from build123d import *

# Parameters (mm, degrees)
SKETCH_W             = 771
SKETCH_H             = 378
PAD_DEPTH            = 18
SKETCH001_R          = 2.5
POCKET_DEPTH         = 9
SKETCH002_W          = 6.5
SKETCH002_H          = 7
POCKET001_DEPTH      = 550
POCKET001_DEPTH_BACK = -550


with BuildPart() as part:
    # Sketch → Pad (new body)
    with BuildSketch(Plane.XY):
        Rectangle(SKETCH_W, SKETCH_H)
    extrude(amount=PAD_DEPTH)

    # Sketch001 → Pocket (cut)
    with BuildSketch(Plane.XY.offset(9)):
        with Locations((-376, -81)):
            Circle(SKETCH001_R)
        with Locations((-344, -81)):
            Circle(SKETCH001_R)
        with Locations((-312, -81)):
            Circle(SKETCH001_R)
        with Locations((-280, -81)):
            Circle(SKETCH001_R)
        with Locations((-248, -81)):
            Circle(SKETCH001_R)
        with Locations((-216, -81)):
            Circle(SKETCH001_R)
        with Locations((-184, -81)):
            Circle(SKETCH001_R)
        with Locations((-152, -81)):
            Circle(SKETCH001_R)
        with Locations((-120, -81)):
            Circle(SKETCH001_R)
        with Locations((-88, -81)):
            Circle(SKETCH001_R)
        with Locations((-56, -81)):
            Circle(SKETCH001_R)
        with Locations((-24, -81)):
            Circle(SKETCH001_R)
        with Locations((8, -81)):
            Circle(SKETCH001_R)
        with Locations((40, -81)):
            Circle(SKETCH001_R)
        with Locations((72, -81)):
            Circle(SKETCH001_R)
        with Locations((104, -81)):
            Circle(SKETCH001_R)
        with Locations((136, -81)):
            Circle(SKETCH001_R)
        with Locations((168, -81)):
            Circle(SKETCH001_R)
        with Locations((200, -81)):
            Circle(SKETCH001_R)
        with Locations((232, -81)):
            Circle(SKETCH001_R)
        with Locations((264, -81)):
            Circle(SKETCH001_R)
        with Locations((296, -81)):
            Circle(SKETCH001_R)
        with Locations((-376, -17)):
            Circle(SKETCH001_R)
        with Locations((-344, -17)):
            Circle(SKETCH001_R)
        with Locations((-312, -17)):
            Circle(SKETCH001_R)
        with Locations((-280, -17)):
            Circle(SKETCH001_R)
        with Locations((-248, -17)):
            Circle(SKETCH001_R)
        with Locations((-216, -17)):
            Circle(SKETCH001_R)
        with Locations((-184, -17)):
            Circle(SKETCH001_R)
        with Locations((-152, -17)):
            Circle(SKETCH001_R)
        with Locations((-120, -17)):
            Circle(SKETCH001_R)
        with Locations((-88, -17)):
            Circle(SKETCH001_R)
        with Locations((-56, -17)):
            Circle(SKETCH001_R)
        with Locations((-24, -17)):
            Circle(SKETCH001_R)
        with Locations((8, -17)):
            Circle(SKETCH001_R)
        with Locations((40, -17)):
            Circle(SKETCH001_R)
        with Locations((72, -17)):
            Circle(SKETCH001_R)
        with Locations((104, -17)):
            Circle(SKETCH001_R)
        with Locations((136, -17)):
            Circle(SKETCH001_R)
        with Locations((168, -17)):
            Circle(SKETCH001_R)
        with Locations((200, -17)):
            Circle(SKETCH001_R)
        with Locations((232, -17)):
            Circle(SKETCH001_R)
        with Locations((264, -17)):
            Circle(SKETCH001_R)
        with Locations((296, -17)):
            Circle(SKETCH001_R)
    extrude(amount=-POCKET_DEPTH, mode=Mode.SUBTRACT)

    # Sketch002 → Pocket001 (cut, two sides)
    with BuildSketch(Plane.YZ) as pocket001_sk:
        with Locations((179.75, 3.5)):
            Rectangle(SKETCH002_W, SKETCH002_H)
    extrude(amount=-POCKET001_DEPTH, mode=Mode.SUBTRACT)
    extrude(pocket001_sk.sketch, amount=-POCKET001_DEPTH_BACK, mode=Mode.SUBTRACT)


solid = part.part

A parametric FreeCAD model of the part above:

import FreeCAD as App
import Part
import Sketcher

V = App.Vector

doc = App.newDocument("Part")
body = doc.addObject("PartDesign::Body", "Body")

# Sketch on XY plane
sketch1 = body.newObject("Sketcher::SketchObject", "Sketch")
sketch1.AttachmentSupport = (doc.getObject("XY_Plane"), [""])
sketch1.MapMode = "FlatFace"
sketch1.addGeometry(Part.LineSegment(V(-386, 189, 0), V(-386, -189, 0)), False)
sketch1.addGeometry(Part.LineSegment(V(-386, -189, 0), V(386, -189, 0)), False)
sketch1.addGeometry(Part.LineSegment(V(386, -189, 0), V(386, 189, 0)), False)
sketch1.addGeometry(Part.LineSegment(V(386, 189, 0), V(-386, 189, 0)), False)
sketch1.addConstraint(Sketcher.Constraint("Coincident", 0, 2, 1, 1))
sketch1.addConstraint(Sketcher.Constraint("Coincident", 1, 2, 2, 1))
sketch1.addConstraint(Sketcher.Constraint("Coincident", 2, 2, 3, 1))
sketch1.addConstraint(Sketcher.Constraint("Coincident", 3, 2, 0, 1))
sketch1.addConstraint(Sketcher.Constraint("Vertical", 0))
sketch1.addConstraint(Sketcher.Constraint("Horizontal", 1))
sketch1.addConstraint(Sketcher.Constraint("Vertical", 2))
sketch1.addConstraint(Sketcher.Constraint("Horizontal", 3))
sketch1.addConstraint(Sketcher.Constraint("Symmetric", 0, 2, 2, 2, -1, 1))
sketch1.addConstraint(Sketcher.Constraint("DistanceX", 1, 1, 1, 2, 771.0))
sketch1.addConstraint(Sketcher.Constraint("DistanceY", 0, 2, 0, 1, 378.0))
pad1 = body.newObject("PartDesign::Pad", "Pad")
pad1.Profile = sketch1
pad1.Length = 18

# Sketch on XY plane
sketch2 = body.newObject("Sketcher::SketchObject", "Sketch001")
sketch2.AttachmentSupport = (doc.getObject("XY_Plane"), [""])
sketch2.MapMode = "FlatFace"
sketch2.AttachmentOffset = App.Placement(V(0, 0, 9), App.Rotation())
sketch2.addGeometry(Part.Circle(V(-376, -81, 0), V(0, 0, 1), 2.5), False)
sketch2.addGeometry(Part.Circle(V(-344, -81, 0), V(0, 0, 1), 2.5), False)
sketch2.addGeometry(Part.Circle(V(-312, -81, 0), V(0, 0, 1), 2.5), False)
sketch2.addGeometry(Part.Circle(V(-280, -81, 0), V(0, 0, 1), 2.5), False)
sketch2.addGeometry(Part.Circle(V(-248, -81, 0), V(0, 0, 1), 2.5), False)
sketch2.addGeometry(Part.Circle(V(-216, -81, 0), V(0, 0, 1), 2.5), False)
sketch2.addGeometry(Part.Circle(V(-184, -81, 0), V(0, 0, 1), 2.5), False)
sketch2.addGeometry(Part.Circle(V(-152, -81, 0), V(0, 0, 1), 2.5), False)
sketch2.addGeometry(Part.Circle(V(-120, -81, 0), V(0, 0, 1), 2.5), False)
sketch2.addGeometry(Part.Circle(V(-88, -81, 0), V(0, 0, 1), 2.5), False)
sketch2.addGeometry(Part.Circle(V(-56, -81, 0), V(0, 0, 1), 2.5), False)
sketch2.addGeometry(Part.Circle(V(-24, -81, 0), V(0, 0, 1), 2.5), False)
sketch2.addGeometry(Part.Circle(V(8, -81, 0), V(0, 0, 1), 2.5), False)
sketch2.addGeometry(Part.Circle(V(40, -81, 0), V(0, 0, 1), 2.5), False)
sketch2.addGeometry(Part.Circle(V(72, -81, 0), V(0, 0, 1), 2.5), False)
sketch2.addGeometry(Part.Circle(V(104, -81, 0), V(0, 0, 1), 2.5), False)
sketch2.addGeometry(Part.Circle(V(136, -81, 0), V(0, 0, 1), 2.5), False)
sketch2.addGeometry(Part.Circle(V(168, -81, 0), V(0, 0, 1), 2.5), False)
sketch2.addGeometry(Part.Circle(V(200, -81, 0), V(0, 0, 1), 2.5), False)
sketch2.addGeometry(Part.Circle(V(232, -81, 0), V(0, 0, 1), 2.5), False)
sketch2.addGeometry(Part.Circle(V(264, -81, 0), V(0, 0, 1), 2.5), False)
sketch2.addGeometry(Part.Circle(V(296, -81, 0), V(0, 0, 1), 2.5), False)
sketch2.addGeometry(Part.Circle(V(-376, -17, 0), V(0, 0, 1), 2.5), False)
sketch2.addGeometry(Part.Circle(V(-344, -17, 0), V(0, 0, 1), 2.5), False)
sketch2.addGeometry(Part.Circle(V(-312, -17, 0), V(0, 0, 1), 2.5), False)
sketch2.addGeometry(Part.Circle(V(-280, -17, 0), V(0, 0, 1), 2.5), False)
sketch2.addGeometry(Part.Circle(V(-248, -17, 0), V(0, 0, 1), 2.5), False)
sketch2.addGeometry(Part.Circle(V(-216, -17, 0), V(0, 0, 1), 2.5), False)
sketch2.addGeometry(Part.Circle(V(-184, -17, 0), V(0, 0, 1), 2.5), False)
sketch2.addGeometry(Part.Circle(V(-152, -17, 0), V(0, 0, 1), 2.5), False)
sketch2.addGeometry(Part.Circle(V(-120, -17, 0), V(0, 0, 1), 2.5), False)
sketch2.addGeometry(Part.Circle(V(-88, -17, 0), V(0, 0, 1), 2.5), False)
sketch2.addGeometry(Part.Circle(V(-56, -17, 0), V(0, 0, 1), 2.5), False)
sketch2.addGeometry(Part.Circle(V(-24, -17, 0), V(0, 0, 1), 2.5), False)
sketch2.addGeometry(Part.Circle(V(8, -17, 0), V(0, 0, 1), 2.5), False)
sketch2.addGeometry(Part.Circle(V(40, -17, 0), V(0, 0, 1), 2.5), False)
sketch2.addGeometry(Part.Circle(V(72, -17, 0), V(0, 0, 1), 2.5), False)
sketch2.addGeometry(Part.Circle(V(104, -17, 0), V(0, 0, 1), 2.5), False)
sketch2.addGeometry(Part.Circle(V(136, -17, 0), V(0, 0, 1), 2.5), False)
sketch2.addGeometry(Part.Circle(V(168, -17, 0), V(0, 0, 1), 2.5), False)
sketch2.addGeometry(Part.Circle(V(200, -17, 0), V(0, 0, 1), 2.5), False)
sketch2.addGeometry(Part.Circle(V(232, -17, 0), V(0, 0, 1), 2.5), False)
sketch2.addGeometry(Part.Circle(V(264, -17, 0), V(0, 0, 1), 2.5), False)
sketch2.addGeometry(Part.Circle(V(296, -17, 0), V(0, 0, 1), 2.5), False)
sketch2.addConstraint(Sketcher.Constraint("Equal", 0, 1))
sketch2.addConstraint(Sketcher.Constraint("Equal", 1, 2))
sketch2.addConstraint(Sketcher.Constraint("Equal", 2, 3))
sketch2.addConstraint(Sketcher.Constraint("Equal", 3, 4))
sketch2.addConstraint(Sketcher.Constraint("Equal", 4, 5))
sketch2.addConstraint(Sketcher.Constraint("Equal", 5, 6))
sketch2.addConstraint(Sketcher.Constraint("Equal", 6, 7))
sketch2.addConstraint(Sketcher.Constraint("Equal", 7, 8))
sketch2.addConstraint(Sketcher.Constraint("Equal", 8, 9))
sketch2.addConstraint(Sketcher.Constraint("Equal", 9, 10))
sketch2.addConstraint(Sketcher.Constraint("Equal", 10, 11))
sketch2.addConstraint(Sketcher.Constraint("Equal", 11, 12))
sketch2.addConstraint(Sketcher.Constraint("Equal", 12, 13))
sketch2.addConstraint(Sketcher.Constraint("Equal", 13, 14))
sketch2.addConstraint(Sketcher.Constraint("Equal", 14, 15))
sketch2.addConstraint(Sketcher.Constraint("Equal", 15, 16))
sketch2.addConstraint(Sketcher.Constraint("Equal", 16, 17))
sketch2.addConstraint(Sketcher.Constraint("Equal", 17, 18))
sketch2.addConstraint(Sketcher.Constraint("Equal", 18, 19))
sketch2.addConstraint(Sketcher.Constraint("Equal", 19, 20))
sketch2.addConstraint(Sketcher.Constraint("Equal", 20, 21))
sketch2.addConstraint(Sketcher.Constraint("Equal", 21, 22))
sketch2.addConstraint(Sketcher.Constraint("Equal", 22, 23))
sketch2.addConstraint(Sketcher.Constraint("Equal", 23, 24))
sketch2.addConstraint(Sketcher.Constraint("Equal", 24, 25))
sketch2.addConstraint(Sketcher.Constraint("Equal", 25, 26))
sketch2.addConstraint(Sketcher.Constraint("Equal", 26, 27))
sketch2.addConstraint(Sketcher.Constraint("Equal", 27, 28))
sketch2.addConstraint(Sketcher.Constraint("Equal", 28, 29))
sketch2.addConstraint(Sketcher.Constraint("Equal", 29, 30))
sketch2.addConstraint(Sketcher.Constraint("Equal", 30, 31))
sketch2.addConstraint(Sketcher.Constraint("Equal", 31, 32))
sketch2.addConstraint(Sketcher.Constraint("Equal", 32, 33))
sketch2.addConstraint(Sketcher.Constraint("Equal", 33, 34))
sketch2.addConstraint(Sketcher.Constraint("Equal", 34, 35))
sketch2.addConstraint(Sketcher.Constraint("Equal", 35, 36))
sketch2.addConstraint(Sketcher.Constraint("Equal", 36, 37))
sketch2.addConstraint(Sketcher.Constraint("Equal", 37, 38))
sketch2.addConstraint(Sketcher.Constraint("Equal", 38, 39))
sketch2.addConstraint(Sketcher.Constraint("Equal", 39, 40))
sketch2.addConstraint(Sketcher.Constraint("Equal", 40, 41))
sketch2.addConstraint(Sketcher.Constraint("Equal", 41, 42))
sketch2.addConstraint(Sketcher.Constraint("Equal", 42, 43))
sketch2.addConstraint(Sketcher.Constraint("Horizontal", 0, 3, 1, 3))
sketch2.addConstraint(Sketcher.Constraint("Horizontal", 1, 3, 2, 3))
sketch2.addConstraint(Sketcher.Constraint("Horizontal", 2, 3, 3, 3))
sketch2.addConstraint(Sketcher.Constraint("Horizontal", 3, 3, 4, 3))
sketch2.addConstraint(Sketcher.Constraint("Horizontal", 4, 3, 5, 3))
sketch2.addConstraint(Sketcher.Constraint("Horizontal", 5, 3, 6, 3))
sketch2.addConstraint(Sketcher.Constraint("Horizontal", 6, 3, 7, 3))
sketch2.addConstraint(Sketcher.Constraint("Horizontal", 7, 3, 8, 3))
sketch2.addConstraint(Sketcher.Constraint("Horizontal", 8, 3, 9, 3))
sketch2.addConstraint(Sketcher.Constraint("Horizontal", 9, 3, 10, 3))
sketch2.addConstraint(Sketcher.Constraint("Horizontal", 10, 3, 11, 3))
sketch2.addConstraint(Sketcher.Constraint("Horizontal", 11, 3, 12, 3))
sketch2.addConstraint(Sketcher.Constraint("Horizontal", 12, 3, 13, 3))
sketch2.addConstraint(Sketcher.Constraint("Horizontal", 13, 3, 14, 3))
sketch2.addConstraint(Sketcher.Constraint("Horizontal", 14, 3, 15, 3))
sketch2.addConstraint(Sketcher.Constraint("Horizontal", 15, 3, 16, 3))
sketch2.addConstraint(Sketcher.Constraint("Horizontal", 16, 3, 17, 3))
sketch2.addConstraint(Sketcher.Constraint("Horizontal", 17, 3, 18, 3))
sketch2.addConstraint(Sketcher.Constraint("Horizontal", 18, 3, 19, 3))
sketch2.addConstraint(Sketcher.Constraint("Horizontal", 19, 3, 20, 3))
sketch2.addConstraint(Sketcher.Constraint("Horizontal", 20, 3, 21, 3))
sketch2.addConstraint(Sketcher.Constraint("Horizontal", 22, 3, 23, 3))
sketch2.addConstraint(Sketcher.Constraint("Horizontal", 23, 3, 24, 3))
sketch2.addConstraint(Sketcher.Constraint("Horizontal", 24, 3, 25, 3))
sketch2.addConstraint(Sketcher.Constraint("Horizontal", 25, 3, 26, 3))
sketch2.addConstraint(Sketcher.Constraint("Horizontal", 26, 3, 27, 3))
sketch2.addConstraint(Sketcher.Constraint("Horizontal", 27, 3, 28, 3))
sketch2.addConstraint(Sketcher.Constraint("Horizontal", 28, 3, 29, 3))
sketch2.addConstraint(Sketcher.Constraint("Horizontal", 29, 3, 30, 3))
sketch2.addConstraint(Sketcher.Constraint("Horizontal", 30, 3, 31, 3))
sketch2.addConstraint(Sketcher.Constraint("Horizontal", 31, 3, 32, 3))
sketch2.addConstraint(Sketcher.Constraint("Horizontal", 32, 3, 33, 3))
sketch2.addConstraint(Sketcher.Constraint("Horizontal", 33, 3, 34, 3))
sketch2.addConstraint(Sketcher.Constraint("Horizontal", 34, 3, 35, 3))
sketch2.addConstraint(Sketcher.Constraint("Horizontal", 35, 3, 36, 3))
sketch2.addConstraint(Sketcher.Constraint("Horizontal", 36, 3, 37, 3))
sketch2.addConstraint(Sketcher.Constraint("Horizontal", 37, 3, 38, 3))
sketch2.addConstraint(Sketcher.Constraint("Horizontal", 38, 3, 39, 3))
sketch2.addConstraint(Sketcher.Constraint("Horizontal", 39, 3, 40, 3))
sketch2.addConstraint(Sketcher.Constraint("Horizontal", 40, 3, 41, 3))
sketch2.addConstraint(Sketcher.Constraint("Horizontal", 41, 3, 42, 3))
sketch2.addConstraint(Sketcher.Constraint("Horizontal", 42, 3, 43, 3))
sketch2.addConstraint(Sketcher.Constraint("Vertical", 0, 3, 22, 3))
sketch2.addConstraint(Sketcher.Constraint("Vertical", 1, 3, 23, 3))
sketch2.addConstraint(Sketcher.Constraint("Vertical", 2, 3, 24, 3))
sketch2.addConstraint(Sketcher.Constraint("Vertical", 3, 3, 25, 3))
sketch2.addConstraint(Sketcher.Constraint("Vertical", 4, 3, 26, 3))
sketch2.addConstraint(Sketcher.Constraint("Vertical", 5, 3, 27, 3))
sketch2.addConstraint(Sketcher.Constraint("Vertical", 6, 3, 28, 3))
sketch2.addConstraint(Sketcher.Constraint("Vertical", 7, 3, 29, 3))
sketch2.addConstraint(Sketcher.Constraint("Vertical", 8, 3, 30, 3))
sketch2.addConstraint(Sketcher.Constraint("Vertical", 9, 3, 31, 3))
sketch2.addConstraint(Sketcher.Constraint("Vertical", 10, 3, 32, 3))
sketch2.addConstraint(Sketcher.Constraint("Vertical", 11, 3, 33, 3))
sketch2.addConstraint(Sketcher.Constraint("Vertical", 12, 3, 34, 3))
sketch2.addConstraint(Sketcher.Constraint("Vertical", 13, 3, 35, 3))
sketch2.addConstraint(Sketcher.Constraint("Vertical", 14, 3, 36, 3))
sketch2.addConstraint(Sketcher.Constraint("Vertical", 15, 3, 37, 3))
sketch2.addConstraint(Sketcher.Constraint("Vertical", 16, 3, 38, 3))
sketch2.addConstraint(Sketcher.Constraint("Vertical", 17, 3, 39, 3))
sketch2.addConstraint(Sketcher.Constraint("Vertical", 18, 3, 40, 3))
sketch2.addConstraint(Sketcher.Constraint("Vertical", 19, 3, 41, 3))
sketch2.addConstraint(Sketcher.Constraint("Vertical", 20, 3, 42, 3))
sketch2.addConstraint(Sketcher.Constraint("Vertical", 21, 3, 43, 3))
sketch2.addConstraint(Sketcher.Constraint("Diameter", 0, 5.0))
sketch2.addConstraint(Sketcher.Constraint("DistanceX", 0, 3, -1, 1, 376.0))
sketch2.addConstraint(Sketcher.Constraint("DistanceY", 0, 3, -1, 1, 81.0))
sketch2.addConstraint(Sketcher.Constraint("DistanceX", 1, 3, -1, 1, 344.0))
sketch2.addConstraint(Sketcher.Constraint("DistanceX", 2, 3, -1, 1, 312.0))
sketch2.addConstraint(Sketcher.Constraint("DistanceX", 3, 3, -1, 1, 280.0))
sketch2.addConstraint(Sketcher.Constraint("DistanceX", 4, 3, -1, 1, 248.0))
sketch2.addConstraint(Sketcher.Constraint("DistanceX", 5, 3, -1, 1, 216.0))
sketch2.addConstraint(Sketcher.Constraint("DistanceX", 6, 3, -1, 1, 184.0))
sketch2.addConstraint(Sketcher.Constraint("DistanceX", 7, 3, -1, 1, 152.0))
sketch2.addConstraint(Sketcher.Constraint("DistanceX", 8, 3, -1, 1, 120.0))
sketch2.addConstraint(Sketcher.Constraint("DistanceX", 9, 3, -1, 1, 88.0))
sketch2.addConstraint(Sketcher.Constraint("DistanceX", 10, 3, -1, 1, 56.0))
sketch2.addConstraint(Sketcher.Constraint("DistanceX", 11, 3, -1, 1, 24.0))
sketch2.addConstraint(Sketcher.Constraint("DistanceX", -1, 1, 12, 3, 8.0))
sketch2.addConstraint(Sketcher.Constraint("DistanceX", -1, 1, 13, 3, 40.0))
sketch2.addConstraint(Sketcher.Constraint("DistanceX", -1, 1, 14, 3, 72.0))
sketch2.addConstraint(Sketcher.Constraint("DistanceX", -1, 1, 15, 3, 104.0))
sketch2.addConstraint(Sketcher.Constraint("DistanceX", -1, 1, 16, 3, 136.0))
sketch2.addConstraint(Sketcher.Constraint("DistanceX", -1, 1, 17, 3, 168.0))
sketch2.addConstraint(Sketcher.Constraint("DistanceX", -1, 1, 18, 3, 200.0))
sketch2.addConstraint(Sketcher.Constraint("DistanceX", -1, 1, 19, 3, 232.0))
sketch2.addConstraint(Sketcher.Constraint("DistanceX", -1, 1, 20, 3, 264.0))
sketch2.addConstraint(Sketcher.Constraint("DistanceX", -1, 1, 21, 3, 296.0))
sketch2.addConstraint(Sketcher.Constraint("DistanceY", 22, 3, -1, 1, 17.0))
pocket1 = body.newObject("PartDesign::Pocket", "Pocket")
pocket1.Profile = sketch2
pocket1.Length = 9

# Sketch on YZ plane
sketch3 = body.newObject("Sketcher::SketchObject", "Sketch002")
sketch3.AttachmentSupport = (doc.getObject("YZ_Plane"), [""])
sketch3.MapMode = "FlatFace"
sketch3.addGeometry(Part.LineSegment(V(176, 7, 0), V(176, 0, 0)), False)
sketch3.addGeometry(Part.LineSegment(V(176, 0, 0), V(183, 0, 0)), False)
sketch3.addGeometry(Part.LineSegment(V(183, 0, 0), V(183, 7, 0)), False)
sketch3.addGeometry(Part.LineSegment(V(183, 7, 0), V(176, 7, 0)), False)
sketch3.addConstraint(Sketcher.Constraint("Coincident", 0, 2, 1, 1))
sketch3.addConstraint(Sketcher.Constraint("Coincident", 1, 2, 2, 1))
sketch3.addConstraint(Sketcher.Constraint("Coincident", 2, 2, 3, 1))
sketch3.addConstraint(Sketcher.Constraint("Coincident", 3, 2, 0, 1))
sketch3.addConstraint(Sketcher.Constraint("Vertical", 0))
sketch3.addConstraint(Sketcher.Constraint("Horizontal", 1))
sketch3.addConstraint(Sketcher.Constraint("Vertical", 2))
sketch3.addConstraint(Sketcher.Constraint("Horizontal", 3))
sketch3.addConstraint(Sketcher.Constraint("PointOnObject", 0, 2, -1))
sketch3.addConstraint(Sketcher.Constraint("DistanceY", 0, 2, 0, 1, 7.0))
sketch3.addConstraint(Sketcher.Constraint("DistanceX", 1, 1, 1, 2, 6.5))
sketch3.addConstraint(Sketcher.Constraint("DistanceX", -1, 1, 1, 2, 183.0))
pocket2 = body.newObject("PartDesign::Pocket", "Pocket001")
pocket2.Profile = sketch3
pocket2.Type = "ThroughAll"
pocket2.Midplane = True

doc.recompute()
